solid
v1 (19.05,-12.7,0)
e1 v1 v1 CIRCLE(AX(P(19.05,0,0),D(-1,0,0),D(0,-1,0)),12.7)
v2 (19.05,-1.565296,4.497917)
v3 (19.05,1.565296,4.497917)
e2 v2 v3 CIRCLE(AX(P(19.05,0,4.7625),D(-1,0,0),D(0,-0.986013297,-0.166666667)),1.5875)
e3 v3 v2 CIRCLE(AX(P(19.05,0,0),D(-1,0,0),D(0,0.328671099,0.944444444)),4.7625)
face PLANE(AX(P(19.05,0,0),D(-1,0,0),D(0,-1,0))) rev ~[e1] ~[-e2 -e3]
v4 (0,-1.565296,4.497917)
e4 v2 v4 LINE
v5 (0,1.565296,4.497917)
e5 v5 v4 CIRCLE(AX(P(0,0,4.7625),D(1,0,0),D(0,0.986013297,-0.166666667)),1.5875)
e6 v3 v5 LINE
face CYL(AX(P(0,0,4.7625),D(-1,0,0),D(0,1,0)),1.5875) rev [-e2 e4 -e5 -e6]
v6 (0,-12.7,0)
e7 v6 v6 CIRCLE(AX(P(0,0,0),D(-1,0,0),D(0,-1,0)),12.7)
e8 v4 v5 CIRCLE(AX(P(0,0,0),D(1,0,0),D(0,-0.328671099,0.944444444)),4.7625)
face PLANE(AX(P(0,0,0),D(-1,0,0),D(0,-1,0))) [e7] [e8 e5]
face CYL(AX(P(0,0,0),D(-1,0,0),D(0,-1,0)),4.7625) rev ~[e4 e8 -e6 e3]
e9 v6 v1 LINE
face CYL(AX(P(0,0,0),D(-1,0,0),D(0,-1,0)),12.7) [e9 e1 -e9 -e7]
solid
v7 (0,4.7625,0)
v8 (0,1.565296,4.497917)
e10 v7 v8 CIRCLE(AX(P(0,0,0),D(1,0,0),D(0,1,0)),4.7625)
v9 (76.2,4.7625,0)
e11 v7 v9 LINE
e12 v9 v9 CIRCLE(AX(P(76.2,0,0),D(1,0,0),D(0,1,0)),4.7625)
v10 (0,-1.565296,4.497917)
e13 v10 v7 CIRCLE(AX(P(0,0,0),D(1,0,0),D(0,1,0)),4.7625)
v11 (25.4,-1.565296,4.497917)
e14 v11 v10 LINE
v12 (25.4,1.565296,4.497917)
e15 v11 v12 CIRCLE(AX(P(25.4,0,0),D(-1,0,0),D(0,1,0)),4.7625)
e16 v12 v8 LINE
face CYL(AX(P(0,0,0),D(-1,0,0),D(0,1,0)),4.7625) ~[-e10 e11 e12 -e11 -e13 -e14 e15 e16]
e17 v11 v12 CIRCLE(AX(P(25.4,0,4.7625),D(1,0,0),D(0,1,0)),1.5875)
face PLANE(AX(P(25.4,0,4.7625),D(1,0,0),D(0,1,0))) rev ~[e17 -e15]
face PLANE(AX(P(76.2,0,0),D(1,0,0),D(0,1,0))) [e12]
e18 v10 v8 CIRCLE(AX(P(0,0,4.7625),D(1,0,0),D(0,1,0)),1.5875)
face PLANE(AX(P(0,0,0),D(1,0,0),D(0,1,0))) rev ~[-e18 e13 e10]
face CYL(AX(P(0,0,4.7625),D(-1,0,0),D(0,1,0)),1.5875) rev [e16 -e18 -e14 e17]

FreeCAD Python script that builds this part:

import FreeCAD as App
import Part
import Sketcher
from FreeCAD import Vector
Q = App.Units.Quantity

doc = App.newDocument("Part")
body = doc.addObject("PartDesign::Body", "Body")

# Sketch on YZ plane
sketch1 = body.newObject("Sketcher::SketchObject", "Sketch")
sketch1.AttachmentSupport = (doc.getObject("YZ_Plane"), [""])
sketch1.MapMode = "FlatFace"
sketch1.addGeometry(Part.Circle(Vector(0, 0, 0), Vector(0, 0, 1), 4.8), False)
sketch1.addConstraint(Sketcher.Constraint("Coincident", 0, 3, -1, 1))
sketch1.addConstraint(Sketcher.Constraint("Diameter", 0, Q("0.375 in")))
pad1 = body.newObject("PartDesign::Pad", "Pad")
pad1.Profile = sketch1
pad1.Length = Q("3 in")
body2 = doc.addObject("PartDesign::Body", "Body001")

# Sketch on YZ plane
sketch2 = body2.newObject("Sketcher::SketchObject", "Sketch001")
sketch2.AttachmentSupport = (doc.getObject("YZ_Plane001"), [""])
sketch2.MapMode = "FlatFace"
sketch2.addGeometry(Part.Circle(Vector(0, 0, 0), Vector(0, 0, 1), 12.7), False)
sketch2.addGeometry(Part.Circle(Vector(0, 0, 0), Vector(0, 0, 1), 4.8), False)
sketch2.addConstraint(Sketcher.Constraint("Coincident", 0, 3, -1, 1))
sketch2.addConstraint(Sketcher.Constraint("Coincident", 1, 3, -1, 1))
sketch2.addConstraint(Sketcher.Constraint("Diameter", 0, Q("1 in")))
sketch2.addConstraint(Sketcher.Constraint("Diameter", 1, Q("0.375 in")))
pad2 = body2.newObject("PartDesign::Pad", "Pad001")
pad2.Profile = sketch2
pad2.Length = Q("0.75 in")
body3 = doc.addObject("PartDesign::Body", "Body002")

# Sketch on YZ plane
sketch3 = body3.newObject("Sketcher::SketchObject", "Sketch002")
sketch3.AttachmentSupport = (doc.getObject("YZ_Plane002"), [""])
sketch3.MapMode = "FlatFace"
sketch3.addGeometry(Part.Circle(Vector(0, 4.8, 0), Vector(0, 0, 1), 1.6), False)
sketch3.addConstraint(Sketcher.Constraint("PointOnObject", 0, 3, -2))
sketch3.addConstraint(Sketcher.Constraint("Diameter", 0, Q("0.125 in")))
sketch3.addConstraint(Sketcher.Constraint("DistanceY", -1, 1, 0, 3, Q("0.1875 in")))
pad3 = body3.newObject("PartDesign::Pad", "Pad002")
pad3.Profile = sketch3
pad3.Length = Q("1 in")
doc.recompute()

body4 = doc.addObject("PartDesign::Body", "Body003")
body4.BaseFeature = body3
boolean = body.newObject("PartDesign::Boolean", "Boolean")
boolean.Type = "Cut"
boolean.addObjects([body4])
doc.recompute()

boolean2 = body2.newObject("PartDesign::Boolean", "Boolean001")
boolean2.Type = "Cut"
boolean2.addObjects([body3])

doc.recompute()
